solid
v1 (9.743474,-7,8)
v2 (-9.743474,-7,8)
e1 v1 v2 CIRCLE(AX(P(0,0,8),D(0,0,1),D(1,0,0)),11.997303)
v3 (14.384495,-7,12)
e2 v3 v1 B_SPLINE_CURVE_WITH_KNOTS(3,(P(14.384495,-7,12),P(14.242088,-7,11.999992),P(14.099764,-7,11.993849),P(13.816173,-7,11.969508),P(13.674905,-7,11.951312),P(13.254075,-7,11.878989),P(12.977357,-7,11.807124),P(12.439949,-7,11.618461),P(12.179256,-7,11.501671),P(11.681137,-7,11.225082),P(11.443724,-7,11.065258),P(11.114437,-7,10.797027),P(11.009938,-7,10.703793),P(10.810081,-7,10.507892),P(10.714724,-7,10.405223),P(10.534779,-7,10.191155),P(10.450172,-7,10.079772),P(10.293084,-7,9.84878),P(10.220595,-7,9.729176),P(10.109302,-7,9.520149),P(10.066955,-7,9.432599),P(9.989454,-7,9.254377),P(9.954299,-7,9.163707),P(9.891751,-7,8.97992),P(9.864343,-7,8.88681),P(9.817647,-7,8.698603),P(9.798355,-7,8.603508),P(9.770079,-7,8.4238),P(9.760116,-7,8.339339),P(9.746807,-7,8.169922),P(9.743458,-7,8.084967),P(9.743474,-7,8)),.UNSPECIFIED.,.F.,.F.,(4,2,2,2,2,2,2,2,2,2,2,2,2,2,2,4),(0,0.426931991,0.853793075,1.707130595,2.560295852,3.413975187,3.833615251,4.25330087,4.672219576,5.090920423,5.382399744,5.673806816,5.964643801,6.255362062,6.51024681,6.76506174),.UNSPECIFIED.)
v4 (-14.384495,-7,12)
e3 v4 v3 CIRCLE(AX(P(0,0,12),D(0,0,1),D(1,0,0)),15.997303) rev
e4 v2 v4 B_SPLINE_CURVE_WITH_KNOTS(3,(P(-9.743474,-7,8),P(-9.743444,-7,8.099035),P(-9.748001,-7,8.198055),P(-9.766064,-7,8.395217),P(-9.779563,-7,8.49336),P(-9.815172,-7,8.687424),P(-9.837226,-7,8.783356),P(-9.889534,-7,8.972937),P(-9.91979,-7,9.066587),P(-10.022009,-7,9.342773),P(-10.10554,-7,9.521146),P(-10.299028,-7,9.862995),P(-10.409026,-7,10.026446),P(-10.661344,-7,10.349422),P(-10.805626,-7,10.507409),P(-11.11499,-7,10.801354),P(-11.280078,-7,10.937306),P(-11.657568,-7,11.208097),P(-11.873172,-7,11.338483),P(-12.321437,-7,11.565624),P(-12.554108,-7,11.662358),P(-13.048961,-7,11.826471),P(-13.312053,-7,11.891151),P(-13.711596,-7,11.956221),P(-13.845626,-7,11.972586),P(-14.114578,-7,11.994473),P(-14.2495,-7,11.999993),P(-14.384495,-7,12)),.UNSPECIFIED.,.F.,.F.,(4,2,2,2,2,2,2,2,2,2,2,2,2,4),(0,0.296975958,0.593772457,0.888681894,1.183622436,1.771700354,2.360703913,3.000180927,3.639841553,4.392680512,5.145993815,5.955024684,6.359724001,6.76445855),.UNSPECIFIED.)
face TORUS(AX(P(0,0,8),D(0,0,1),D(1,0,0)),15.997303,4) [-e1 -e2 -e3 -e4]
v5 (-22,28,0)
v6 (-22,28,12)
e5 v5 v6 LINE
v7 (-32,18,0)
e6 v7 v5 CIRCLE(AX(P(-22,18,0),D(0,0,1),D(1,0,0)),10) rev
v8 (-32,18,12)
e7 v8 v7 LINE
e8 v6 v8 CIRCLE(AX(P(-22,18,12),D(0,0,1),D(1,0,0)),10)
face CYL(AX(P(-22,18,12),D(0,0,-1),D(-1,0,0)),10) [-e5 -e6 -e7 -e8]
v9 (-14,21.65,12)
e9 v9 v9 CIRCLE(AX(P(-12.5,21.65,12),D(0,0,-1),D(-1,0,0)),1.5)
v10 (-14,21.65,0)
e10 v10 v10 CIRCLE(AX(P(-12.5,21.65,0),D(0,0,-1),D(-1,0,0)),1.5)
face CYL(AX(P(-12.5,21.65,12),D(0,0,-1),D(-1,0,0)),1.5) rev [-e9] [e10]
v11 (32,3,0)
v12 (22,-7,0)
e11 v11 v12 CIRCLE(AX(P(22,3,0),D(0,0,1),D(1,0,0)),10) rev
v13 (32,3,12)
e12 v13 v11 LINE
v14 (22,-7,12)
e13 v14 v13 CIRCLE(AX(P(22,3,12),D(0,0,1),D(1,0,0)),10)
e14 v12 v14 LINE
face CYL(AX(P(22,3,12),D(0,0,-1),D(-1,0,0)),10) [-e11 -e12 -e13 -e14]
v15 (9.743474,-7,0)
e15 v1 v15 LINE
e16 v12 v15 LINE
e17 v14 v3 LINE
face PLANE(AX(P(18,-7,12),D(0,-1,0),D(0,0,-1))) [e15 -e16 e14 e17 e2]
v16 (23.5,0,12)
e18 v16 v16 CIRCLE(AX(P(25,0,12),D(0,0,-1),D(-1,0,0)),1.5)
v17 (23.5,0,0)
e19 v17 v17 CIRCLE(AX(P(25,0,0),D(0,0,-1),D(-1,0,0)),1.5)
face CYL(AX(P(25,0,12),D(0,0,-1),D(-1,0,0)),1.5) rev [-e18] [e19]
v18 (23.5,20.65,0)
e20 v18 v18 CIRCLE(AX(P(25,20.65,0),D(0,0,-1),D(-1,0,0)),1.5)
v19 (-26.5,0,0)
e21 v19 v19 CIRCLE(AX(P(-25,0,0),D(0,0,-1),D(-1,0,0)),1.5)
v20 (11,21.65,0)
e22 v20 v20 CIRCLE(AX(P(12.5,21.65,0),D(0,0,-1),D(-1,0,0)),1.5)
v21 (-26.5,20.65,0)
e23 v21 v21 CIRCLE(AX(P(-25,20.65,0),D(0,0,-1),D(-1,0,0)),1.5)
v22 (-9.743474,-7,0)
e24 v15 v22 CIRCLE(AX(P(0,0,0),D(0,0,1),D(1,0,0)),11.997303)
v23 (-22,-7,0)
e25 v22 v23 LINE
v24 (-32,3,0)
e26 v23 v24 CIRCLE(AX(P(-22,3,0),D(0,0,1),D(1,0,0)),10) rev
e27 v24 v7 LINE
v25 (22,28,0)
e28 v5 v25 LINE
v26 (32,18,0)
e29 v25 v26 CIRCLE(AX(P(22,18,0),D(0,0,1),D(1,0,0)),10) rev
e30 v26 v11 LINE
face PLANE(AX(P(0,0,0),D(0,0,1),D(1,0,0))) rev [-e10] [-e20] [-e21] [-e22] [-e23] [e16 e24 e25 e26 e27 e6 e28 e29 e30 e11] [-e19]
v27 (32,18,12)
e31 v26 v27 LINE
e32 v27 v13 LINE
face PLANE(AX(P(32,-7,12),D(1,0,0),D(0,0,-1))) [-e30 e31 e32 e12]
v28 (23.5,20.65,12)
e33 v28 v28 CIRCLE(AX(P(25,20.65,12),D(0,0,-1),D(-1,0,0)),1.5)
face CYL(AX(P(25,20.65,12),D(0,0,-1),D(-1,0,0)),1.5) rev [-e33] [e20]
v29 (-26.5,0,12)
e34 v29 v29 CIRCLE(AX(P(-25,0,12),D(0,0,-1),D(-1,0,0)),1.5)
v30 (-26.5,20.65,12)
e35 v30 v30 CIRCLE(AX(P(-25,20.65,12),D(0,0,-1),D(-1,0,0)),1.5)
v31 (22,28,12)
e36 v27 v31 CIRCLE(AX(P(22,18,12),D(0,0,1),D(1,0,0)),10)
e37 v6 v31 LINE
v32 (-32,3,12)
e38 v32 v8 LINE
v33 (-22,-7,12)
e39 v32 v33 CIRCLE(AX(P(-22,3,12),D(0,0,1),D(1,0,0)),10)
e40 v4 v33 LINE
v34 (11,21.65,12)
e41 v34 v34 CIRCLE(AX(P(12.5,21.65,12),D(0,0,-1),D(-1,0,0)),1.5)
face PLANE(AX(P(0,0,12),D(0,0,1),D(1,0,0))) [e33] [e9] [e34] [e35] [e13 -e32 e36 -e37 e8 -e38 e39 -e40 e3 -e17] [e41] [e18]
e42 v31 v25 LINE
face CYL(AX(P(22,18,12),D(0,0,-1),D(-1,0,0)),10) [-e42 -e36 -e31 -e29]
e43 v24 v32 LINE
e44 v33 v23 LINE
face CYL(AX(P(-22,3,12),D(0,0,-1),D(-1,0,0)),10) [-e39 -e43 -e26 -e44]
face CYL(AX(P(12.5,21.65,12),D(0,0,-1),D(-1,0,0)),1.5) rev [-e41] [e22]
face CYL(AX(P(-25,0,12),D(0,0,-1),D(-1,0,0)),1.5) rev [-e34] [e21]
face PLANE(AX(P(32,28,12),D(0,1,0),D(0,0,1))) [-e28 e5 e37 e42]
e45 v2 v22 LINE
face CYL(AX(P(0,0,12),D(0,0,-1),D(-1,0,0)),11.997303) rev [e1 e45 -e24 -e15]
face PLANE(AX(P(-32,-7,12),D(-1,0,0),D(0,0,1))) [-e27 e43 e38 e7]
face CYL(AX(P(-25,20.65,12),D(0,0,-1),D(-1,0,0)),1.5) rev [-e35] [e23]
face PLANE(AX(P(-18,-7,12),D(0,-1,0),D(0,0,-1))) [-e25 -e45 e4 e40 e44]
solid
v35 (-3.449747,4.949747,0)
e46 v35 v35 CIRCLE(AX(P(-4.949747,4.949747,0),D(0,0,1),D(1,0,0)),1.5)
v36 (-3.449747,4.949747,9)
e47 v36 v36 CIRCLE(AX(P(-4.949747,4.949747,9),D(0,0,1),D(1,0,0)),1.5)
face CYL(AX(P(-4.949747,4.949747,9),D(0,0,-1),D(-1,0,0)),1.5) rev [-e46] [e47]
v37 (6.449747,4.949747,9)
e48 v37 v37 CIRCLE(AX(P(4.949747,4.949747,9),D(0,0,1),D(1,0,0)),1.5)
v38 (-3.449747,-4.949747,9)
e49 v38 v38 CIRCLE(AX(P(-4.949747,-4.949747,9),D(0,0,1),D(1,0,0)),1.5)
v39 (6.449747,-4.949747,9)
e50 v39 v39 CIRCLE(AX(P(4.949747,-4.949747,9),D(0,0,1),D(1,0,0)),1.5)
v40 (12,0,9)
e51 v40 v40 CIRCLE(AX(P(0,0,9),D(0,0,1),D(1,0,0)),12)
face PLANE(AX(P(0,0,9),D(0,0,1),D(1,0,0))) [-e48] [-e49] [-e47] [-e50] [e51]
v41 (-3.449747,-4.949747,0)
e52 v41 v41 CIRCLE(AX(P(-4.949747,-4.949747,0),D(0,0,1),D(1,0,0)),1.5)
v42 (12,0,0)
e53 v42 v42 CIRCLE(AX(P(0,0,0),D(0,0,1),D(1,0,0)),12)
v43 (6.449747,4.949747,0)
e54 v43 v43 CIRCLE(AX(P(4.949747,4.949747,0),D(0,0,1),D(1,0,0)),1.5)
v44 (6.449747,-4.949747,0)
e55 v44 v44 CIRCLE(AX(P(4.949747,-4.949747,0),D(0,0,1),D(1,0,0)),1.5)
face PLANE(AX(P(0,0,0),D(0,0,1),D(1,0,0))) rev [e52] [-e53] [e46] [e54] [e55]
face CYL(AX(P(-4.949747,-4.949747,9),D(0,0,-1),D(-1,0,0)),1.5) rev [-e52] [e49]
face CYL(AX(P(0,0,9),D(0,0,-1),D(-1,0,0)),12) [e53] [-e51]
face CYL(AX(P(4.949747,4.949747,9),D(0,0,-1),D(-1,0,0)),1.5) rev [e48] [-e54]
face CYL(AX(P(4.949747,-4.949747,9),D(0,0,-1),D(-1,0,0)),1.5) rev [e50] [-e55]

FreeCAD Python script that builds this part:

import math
import FreeCAD as App
import Part
import Sketcher
from FreeCAD import Vector
Q = App.Units.Quantity


def edges_at(feature, points):
    """Names of the edges that pass closest to the given points."""
    edges = feature.Shape.Edges
    near = lambda p: min(range(len(edges)), key=lambda i: edges[i].distToShape(Part.Vertex(*p))[0])
    return sorted({f"Edge{near(p) + 1}" for p in points})

doc = App.newDocument("Part")
body = doc.addObject("PartDesign::Body", "Body")

sketch1 = body.newObject("Sketcher::SketchObject", "Sketch")
sketch1.AttachmentSupport = (doc.getObject("XY_Plane"), [""])
sketch1.MapMode = "FlatFace"
sketch1.addGeometry(Part.Circle(Vector(0, 0, 0), Vector(0, 0, 1), 12), False)
sketch1.addGeometry(Part.Circle(Vector(-4.9, -4.9, 0), Vector(0, 0, 1), 1.5), False)
sketch1.addGeometry(Part.Circle(Vector(4.9, -4.9, 0), Vector(0, 0, 1), 1.5), False)
sketch1.addGeometry(Part.Circle(Vector(-4.9, 4.9, 0), Vector(0, 0, 1), 1.5), False)
sketch1.addGeometry(Part.Circle(Vector(4.9, 4.9, 0), Vector(0, 0, 1), 1.5), False)
sketch1.addConstraint(Sketcher.Constraint("Coincident", 0, 3, -1, 1))
sketch1.addConstraint(Sketcher.Constraint("Equal", 1, 2))
sketch1.addConstraint(Sketcher.Constraint("Equal", 2, 3))
sketch1.addConstraint(Sketcher.Constraint("Equal", 3, 4))
sketch1.addConstraint(Sketcher.Constraint("Symmetric", 2, 3, 3, 3, -1, 1))
sketch1.addConstraint(Sketcher.Constraint("Symmetric", 1, 3, 4, 3, -1, 1))
sketch1.addConstraint(Sketcher.Constraint("Symmetric", 1, 3, 2, 3, -2))
sketch1.addConstraint(Sketcher.Constraint("Diameter", 0, Q("24 mm")))
sketch1.addConstraint(Sketcher.Constraint("Diameter", 1, Q("3 mm")))
sketch1.addConstraint(Sketcher.Constraint("DistanceX", 1, 3, -1, 1, Q("4.949747 mm")))
sketch1.addConstraint(Sketcher.Constraint("DistanceY", 1, 3, -1, 1, Q("4.949747 mm")))
pad1 = body.newObject("PartDesign::Pad", "Pad")
pad1.Profile = sketch1
pad1.Length = 9
body2 = doc.addObject("PartDesign::Body", "Body001")

sketch2 = body2.newObject("Sketcher::SketchObject", "Sketch001")
sketch2.AttachmentSupport = (doc.getObject("XY_Plane001"), [""])
sketch2.MapMode = "FlatFace"
sketch2.addGeometry(Part.LineSegment(Vector(32, 28, 0), Vector(32, -7, 0)), False)
sketch2.addGeometry(Part.LineSegment(Vector(32, -7, 0), Vector(9.7, -7, 0)), False)
sketch2.addGeometry(Part.ArcOfCircle(Part.Circle(Vector(0, 0, 0), Vector(0, 0, 1), 12), math.radians(-36), math.radians(216)), False)
sketch2.addGeometry(Part.LineSegment(Vector(-9.7, -7, 0), Vector(-32, -7, 0)), False)
sketch2.addGeometry(Part.LineSegment(Vector(-32, -7, 0), Vector(-32, 28, 0)), False)
sketch2.addGeometry(Part.LineSegment(Vector(-32, 28, 0), Vector(32, 28, 0)), False)
sketch2.addGeometry(Part.Circle(Vector(-25, 0, 0), Vector(0, 0, 1), 1.5), False)
sketch2.addGeometry(Part.Circle(Vector(25, 0, 0), Vector(0, 0, 1), 1.5), False)
sketch2.addGeometry(Part.Circle(Vector(-25, 20.6, 0), Vector(0, 0, 1), 1.5), False)
sketch2.addGeometry(Part.Circle(Vector(-12.5, 21.6, 0), Vector(0, 0, 1), 1.5), False)
sketch2.addGeometry(Part.Circle(Vector(12.5, 21.6, 0), Vector(0, 0, 1), 1.5), False)
sketch2.addGeometry(Part.Circle(Vector(25, 20.6, 0), Vector(0, 0, 1), 1.5), False)
sketch2.addConstraint(Sketcher.Constraint("Coincident", 0, 2, 1, 1))
sketch2.addConstraint(Sketcher.Constraint("Coincident", 1, 2, 2, 1))
sketch2.addConstraint(Sketcher.Constraint("Coincident", 2, 2, 3, 1))
sketch2.addConstraint(Sketcher.Constraint("Coincident", 3, 2, 4, 1))
sketch2.addConstraint(Sketcher.Constraint("Coincident", 4, 2, 5, 1))
sketch2.addConstraint(Sketcher.Constraint("Coincident", 5, 2, 0, 1))
sketch2.addConstraint(Sketcher.Constraint("Vertical", 0))
sketch2.addConstraint(Sketcher.Constraint("Horizontal", 1))
sketch2.addConstraint(Sketcher.Constraint("Horizontal", 3))
sketch2.addConstraint(Sketcher.Constraint("Vertical", 4))
sketch2.addConstraint(Sketcher.Constraint("Horizontal", 5))
sketch2.addConstraint(Sketcher.Constraint("Coincident", 2, 3, -1, 1))
sketch2.addConstraint(Sketcher.Constraint("Equal", 6, 7))
sketch2.addConstraint(Sketcher.Constraint("Equal", 7, 8))
sketch2.addConstraint(Sketcher.Constraint("Equal", 8, 9))
sketch2.addConstraint(Sketcher.Constraint("Equal", 9, 10))
sketch2.addConstraint(Sketcher.Constraint("Equal", 10, 11))
sketch2.addConstraint(Sketcher.Constraint("Symmetric", 6, 3, 7, 3, -1, 1))
sketch2.addConstraint(Sketcher.Constraint("Symmetric", 9, 3, 10, 3, -2))
sketch2.addConstraint(Sketcher.Constraint("Symmetric", 8, 3, 11, 3, -2))
sketch2.addConstraint(Sketcher.Constraint("Symmetric", 0, 2, 3, 2, -2))
sketch2.addConstraint(Sketcher.Constraint("PointOnObject", 6, 3, -1))
sketch2.addConstraint(Sketcher.Constraint("Vertical", 6, 3, 8, 3))
sketch2.addConstraint(Sketcher.Constraint("Diameter", 6, Q("3 mm")))
sketch2.addConstraint(Sketcher.Constraint("DistanceX", 5, 1, 5, 2, Q("64 mm")))
sketch2.addConstraint(Sketcher.Constraint("DistanceY", 0, 2, 0, 1, Q("35 mm")))
sketch2.addConstraint(Sketcher.Constraint("DistanceX", 6, 3, -1, 1, Q("25 mm")))
sketch2.addConstraint(Sketcher.Constraint("DistanceY", 0, 2, -1, 1, Q("7 mm")))
sketch2.addConstraint(Sketcher.Constraint("DistanceY", 8, 3, 9, 3, Q("1 mm")))
sketch2.addConstraint(Sketcher.Constraint("DistanceX", 9, 3, 10, 3, Q("25 mm")))
sketch2.addConstraint(Sketcher.Constraint("DistanceY", -1, 1, 8, 3, Q("20.65 mm")))
sketch2.addConstraint(Sketcher.Constraint("Radius", 2, Q("11.997303 mm")))
pad2 = body2.newObject("PartDesign::Pad", "Pad001")
pad2.Profile = sketch2
pad2.Length = 12
doc.recompute()

fillet = body2.newObject("PartDesign::Fillet", "Fillet")
fillet.Base = (pad2, edges_at(pad2, [(0, 11.997, 12)]))
fillet.Radius = 4
doc.recompute()

fillet2 = body2.newObject("PartDesign::Fillet", "Fillet001")
fillet2.Base = (fillet, edges_at(fillet, [
    (32, 28, 6),
    (-32, 28, 6),
    (-32, -7, 6),
    (32, -7, 6),
]))
fillet2.Radius = 10

doc.recompute()
